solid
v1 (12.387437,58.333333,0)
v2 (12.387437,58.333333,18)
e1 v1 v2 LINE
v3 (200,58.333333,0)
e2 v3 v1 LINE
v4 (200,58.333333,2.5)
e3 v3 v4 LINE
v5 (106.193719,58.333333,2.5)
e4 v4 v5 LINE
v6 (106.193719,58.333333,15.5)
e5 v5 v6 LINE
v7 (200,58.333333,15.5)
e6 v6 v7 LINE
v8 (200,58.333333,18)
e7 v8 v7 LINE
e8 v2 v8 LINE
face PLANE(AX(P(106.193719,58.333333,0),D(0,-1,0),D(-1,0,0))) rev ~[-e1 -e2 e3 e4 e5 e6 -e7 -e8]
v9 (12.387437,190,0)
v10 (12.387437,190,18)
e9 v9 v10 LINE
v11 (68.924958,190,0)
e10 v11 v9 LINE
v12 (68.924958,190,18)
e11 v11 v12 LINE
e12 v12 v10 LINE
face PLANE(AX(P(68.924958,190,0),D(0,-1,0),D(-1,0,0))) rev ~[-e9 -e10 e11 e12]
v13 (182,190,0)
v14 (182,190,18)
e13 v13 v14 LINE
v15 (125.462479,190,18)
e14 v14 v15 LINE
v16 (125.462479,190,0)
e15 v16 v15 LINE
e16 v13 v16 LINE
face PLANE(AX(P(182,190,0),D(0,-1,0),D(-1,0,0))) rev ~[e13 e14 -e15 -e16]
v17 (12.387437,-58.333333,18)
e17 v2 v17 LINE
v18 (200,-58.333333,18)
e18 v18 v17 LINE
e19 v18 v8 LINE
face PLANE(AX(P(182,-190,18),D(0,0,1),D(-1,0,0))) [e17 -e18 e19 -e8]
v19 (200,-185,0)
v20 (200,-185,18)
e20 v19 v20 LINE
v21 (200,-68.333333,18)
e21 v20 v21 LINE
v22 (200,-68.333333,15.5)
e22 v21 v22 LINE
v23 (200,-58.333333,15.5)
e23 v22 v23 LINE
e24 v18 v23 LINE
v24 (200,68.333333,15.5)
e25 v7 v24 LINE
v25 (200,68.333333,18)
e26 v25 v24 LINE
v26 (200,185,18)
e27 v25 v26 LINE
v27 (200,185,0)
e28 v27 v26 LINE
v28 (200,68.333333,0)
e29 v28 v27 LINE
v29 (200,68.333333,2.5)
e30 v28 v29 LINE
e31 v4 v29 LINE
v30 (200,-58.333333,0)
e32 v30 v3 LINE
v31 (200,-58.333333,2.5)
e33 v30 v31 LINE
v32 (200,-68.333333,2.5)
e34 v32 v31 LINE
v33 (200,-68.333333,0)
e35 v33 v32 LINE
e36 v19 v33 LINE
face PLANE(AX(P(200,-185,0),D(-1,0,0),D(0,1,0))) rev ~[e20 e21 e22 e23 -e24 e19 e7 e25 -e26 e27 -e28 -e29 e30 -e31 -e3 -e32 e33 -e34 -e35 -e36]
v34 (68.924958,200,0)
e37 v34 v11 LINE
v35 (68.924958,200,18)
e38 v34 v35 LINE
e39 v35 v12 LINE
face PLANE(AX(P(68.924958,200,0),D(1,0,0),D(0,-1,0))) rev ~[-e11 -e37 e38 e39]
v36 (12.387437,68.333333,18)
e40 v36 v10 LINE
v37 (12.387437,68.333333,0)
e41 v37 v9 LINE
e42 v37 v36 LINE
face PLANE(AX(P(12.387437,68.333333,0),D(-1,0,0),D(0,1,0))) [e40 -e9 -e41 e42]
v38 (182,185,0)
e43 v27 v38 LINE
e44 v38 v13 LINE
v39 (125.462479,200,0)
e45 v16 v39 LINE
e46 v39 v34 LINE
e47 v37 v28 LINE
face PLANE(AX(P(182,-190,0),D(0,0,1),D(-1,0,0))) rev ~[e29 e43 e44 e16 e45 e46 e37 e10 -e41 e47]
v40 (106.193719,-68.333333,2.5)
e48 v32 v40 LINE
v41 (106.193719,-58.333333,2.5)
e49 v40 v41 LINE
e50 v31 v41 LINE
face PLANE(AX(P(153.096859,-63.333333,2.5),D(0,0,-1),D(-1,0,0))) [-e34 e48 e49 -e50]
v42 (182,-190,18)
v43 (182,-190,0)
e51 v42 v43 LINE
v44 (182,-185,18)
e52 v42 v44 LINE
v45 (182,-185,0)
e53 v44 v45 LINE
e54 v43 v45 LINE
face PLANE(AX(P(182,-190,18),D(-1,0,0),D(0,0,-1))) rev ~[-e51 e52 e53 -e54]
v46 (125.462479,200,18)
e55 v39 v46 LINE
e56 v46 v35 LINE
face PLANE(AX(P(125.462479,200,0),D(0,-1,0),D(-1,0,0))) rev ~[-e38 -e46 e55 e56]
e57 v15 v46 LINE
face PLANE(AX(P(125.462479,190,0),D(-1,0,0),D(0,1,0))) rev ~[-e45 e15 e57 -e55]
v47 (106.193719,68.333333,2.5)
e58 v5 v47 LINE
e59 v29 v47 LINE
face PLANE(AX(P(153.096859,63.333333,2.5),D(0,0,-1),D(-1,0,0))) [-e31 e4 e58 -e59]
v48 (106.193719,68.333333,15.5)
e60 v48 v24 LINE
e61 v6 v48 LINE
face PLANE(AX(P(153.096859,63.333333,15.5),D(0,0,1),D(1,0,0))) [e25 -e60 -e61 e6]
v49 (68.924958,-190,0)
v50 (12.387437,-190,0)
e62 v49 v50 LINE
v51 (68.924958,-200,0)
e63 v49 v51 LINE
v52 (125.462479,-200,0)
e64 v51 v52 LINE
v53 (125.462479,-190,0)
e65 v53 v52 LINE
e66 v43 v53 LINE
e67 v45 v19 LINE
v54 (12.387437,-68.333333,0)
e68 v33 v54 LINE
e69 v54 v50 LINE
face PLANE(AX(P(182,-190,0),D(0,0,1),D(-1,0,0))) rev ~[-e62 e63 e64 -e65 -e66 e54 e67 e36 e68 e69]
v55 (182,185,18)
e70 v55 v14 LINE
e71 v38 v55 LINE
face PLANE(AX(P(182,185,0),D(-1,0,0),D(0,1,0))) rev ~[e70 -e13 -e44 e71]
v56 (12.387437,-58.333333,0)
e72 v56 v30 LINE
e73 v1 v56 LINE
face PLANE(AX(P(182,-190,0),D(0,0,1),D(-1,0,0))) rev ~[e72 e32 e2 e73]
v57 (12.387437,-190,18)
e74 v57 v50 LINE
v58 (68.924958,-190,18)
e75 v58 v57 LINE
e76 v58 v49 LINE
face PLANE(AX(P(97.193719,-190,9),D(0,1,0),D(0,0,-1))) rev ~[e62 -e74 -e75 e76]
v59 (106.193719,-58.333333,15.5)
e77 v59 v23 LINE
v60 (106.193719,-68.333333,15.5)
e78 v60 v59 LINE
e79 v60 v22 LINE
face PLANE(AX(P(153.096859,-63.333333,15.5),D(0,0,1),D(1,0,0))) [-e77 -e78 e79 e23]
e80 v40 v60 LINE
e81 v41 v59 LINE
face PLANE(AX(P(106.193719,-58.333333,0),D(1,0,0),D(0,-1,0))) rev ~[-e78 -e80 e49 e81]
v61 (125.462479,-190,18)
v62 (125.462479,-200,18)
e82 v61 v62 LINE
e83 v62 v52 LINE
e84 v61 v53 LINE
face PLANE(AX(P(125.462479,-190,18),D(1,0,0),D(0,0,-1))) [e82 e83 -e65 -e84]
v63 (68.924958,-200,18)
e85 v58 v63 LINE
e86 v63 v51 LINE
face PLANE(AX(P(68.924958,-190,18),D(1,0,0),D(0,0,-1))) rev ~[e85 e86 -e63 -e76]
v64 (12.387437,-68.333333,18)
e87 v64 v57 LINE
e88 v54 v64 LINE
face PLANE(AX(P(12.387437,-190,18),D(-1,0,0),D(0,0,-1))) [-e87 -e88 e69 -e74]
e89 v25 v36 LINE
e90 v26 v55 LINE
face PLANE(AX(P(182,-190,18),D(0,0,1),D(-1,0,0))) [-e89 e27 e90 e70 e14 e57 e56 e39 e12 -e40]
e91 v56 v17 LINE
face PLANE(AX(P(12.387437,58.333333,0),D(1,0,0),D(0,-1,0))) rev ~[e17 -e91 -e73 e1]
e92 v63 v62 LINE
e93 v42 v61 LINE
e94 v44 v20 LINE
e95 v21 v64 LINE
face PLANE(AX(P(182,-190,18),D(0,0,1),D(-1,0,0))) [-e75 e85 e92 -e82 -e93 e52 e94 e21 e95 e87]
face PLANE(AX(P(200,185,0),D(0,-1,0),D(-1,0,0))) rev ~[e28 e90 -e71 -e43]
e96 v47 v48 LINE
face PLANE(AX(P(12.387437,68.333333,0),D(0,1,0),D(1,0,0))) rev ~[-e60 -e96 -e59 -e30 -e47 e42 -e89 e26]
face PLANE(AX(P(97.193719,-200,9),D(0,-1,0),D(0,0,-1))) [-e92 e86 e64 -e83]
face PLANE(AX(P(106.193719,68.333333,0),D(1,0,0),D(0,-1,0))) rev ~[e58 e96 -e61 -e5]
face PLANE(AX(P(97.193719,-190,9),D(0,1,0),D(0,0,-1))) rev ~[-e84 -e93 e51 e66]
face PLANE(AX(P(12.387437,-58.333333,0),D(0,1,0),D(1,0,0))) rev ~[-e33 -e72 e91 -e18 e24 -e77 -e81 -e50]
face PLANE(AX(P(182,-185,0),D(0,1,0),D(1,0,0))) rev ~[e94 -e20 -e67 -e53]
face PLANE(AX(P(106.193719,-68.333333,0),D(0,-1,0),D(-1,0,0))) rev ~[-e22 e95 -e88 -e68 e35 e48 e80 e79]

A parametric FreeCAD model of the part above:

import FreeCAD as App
import Part
import Sketcher
from FreeCAD import Vector
Q = App.Units.Quantity


def add_polygon(sketch, points):
    """Adds a closed chain of lines whose ends are joined by coincident constraints."""
    first, n = sketch.GeometryCount, len(points)
    for a, b in zip(points, points[1:] + points[:1]):
        sketch.addGeometry(Part.LineSegment(App.Vector(*a, 0), App.Vector(*b, 0)), False)
    for i in range(n):
        sketch.addConstraint(Sketcher.Constraint("Coincident", first + i, 2, first + (i + 1) % n, 1))

doc = App.newDocument("Part")
body = doc.addObject("PartDesign::Body", "Body")

sketch1 = doc.addObject("Sketcher::SketchObject", "Sketch")
body.addObject(sketch1)
sketch1.AttachmentSupport = (doc.XY_Plane, [""])
sketch1.MapMode = "FlatFace"
add_polygon(sketch1, [(-9, -12), (-9, -182), (9, -182), (9, -12)])
sketch1.addConstraint([
    Sketcher.Constraint("Vertical", 0),
    Sketcher.Constraint("Horizontal", 1),
    Sketcher.Constraint("Vertical", 2),
    Sketcher.Constraint("Horizontal", 3),
    Sketcher.Constraint("DistanceX", 1, 1, 1, 2, Q("18 mm")),
    Sketcher.Constraint("DistanceX", 0, 2, -1, 1, Q("9 mm")),
    Sketcher.Constraint("DistanceY", 0, 2, -1, 1, Q("182 mm")),
    Sketcher.Constraint("DistanceY", 0, 2, 0, 1, Q("169.612563 mm")),
])
pad1 = doc.addObject("PartDesign::Pad", "Pad")
body.addObject(pad1)
pad1.Profile = sketch1
pad1.Length = 5

sketch2 = doc.addObject("Sketcher::SketchObject", "Sketch001")
body.addObject(sketch2)
sketch2.AttachmentSupport = (doc.XY_Plane, [""])
sketch2.MapMode = "FlatFace"
add_polygon(sketch2, [(-9, -125), (-9, -69), (9, -69), (9, -125)])
sketch2.addConstraint([
    Sketcher.Constraint("Vertical", 0),
    Sketcher.Constraint("Horizontal", 1),
    Sketcher.Constraint("Vertical", 2),
    Sketcher.Constraint("Horizontal", 3),
    Sketcher.Constraint("DistanceX", 1, 1, 1, 2, Q("18 mm")),
    Sketcher.Constraint("DistanceX", 0, 2, -1, 1, Q("9 mm")),
    Sketcher.Constraint("DistanceY", 0, 1, 0, 2, Q("56.537521 mm")),
    Sketcher.Constraint("DistanceY", 0, 2, -1, 1, Q("68.924958 mm")),
])
pad2 = doc.addObject("PartDesign::Pad", "Pad001")
body.addObject(pad2)
pad2.Profile = sketch2
pad2.Length = 10
pad2.Reversed = True

sketch3 = doc.addObject("Sketcher::SketchObject", "Sketch002")
body.addObject(sketch3)
sketch3.AttachmentSupport = (doc.YZ_Plane, [""])
sketch3.MapMode = "FlatFace"
sketch3.AttachmentOffset = App.Placement(Vector(0, 0, 9), App.Rotation())
add_polygon(sketch3, [(-69, 0), (-12, 0), (-12, 122), (-106, 122), (-106, 132), (-12, 132), (-12, 248), (-106, 248), (-106, 258), (-12, 258), (-12, 380), (-69, 380), (-69, 390), (-125, 390), (-125, 380), (-182, 380), (-182, 375), (-200, 375), (-200, 5), (-182, 5), (-182, 0), (-125, 0), (-125, -10), (-69, -10)])
sketch3.addConstraint([
    Sketcher.Constraint("Horizontal", 0),
    Sketcher.Constraint("Vertical", 1),
    Sketcher.Constraint("Horizontal", 2),
    Sketcher.Constraint("Vertical", 3),
    Sketcher.Constraint("Horizontal", 4),
    Sketcher.Constraint("Vertical", 5),
    Sketcher.Constraint("Horizontal", 6),
    Sketcher.Constraint("Vertical", 7),
    Sketcher.Constraint("Horizontal", 8),
    Sketcher.Constraint("Vertical", 9),
    Sketcher.Constraint("Horizontal", 10),
    Sketcher.Constraint("Vertical", 11),
    Sketcher.Constraint("Horizontal", 12),
    Sketcher.Constraint("Vertical", 13),
    Sketcher.Constraint("Horizontal", 14),
    Sketcher.Constraint("Vertical", 15),
    Sketcher.Constraint("Horizontal", 16),
    Sketcher.Constraint("Vertical", 17),
    Sketcher.Constraint("Horizontal", 18),
    Sketcher.Constraint("Vertical", 19),
    Sketcher.Constraint("Horizontal", 20),
    Sketcher.Constraint("Vertical", 21),
    Sketcher.Constraint("Horizontal", 22),
    Sketcher.Constraint("Vertical", 23),
    Sketcher.Constraint("PointOnObject", 0, 2, -1),
    Sketcher.Constraint("PointOnObject", 19, 2, -1),
    Sketcher.Constraint("Horizontal", 10, 2, 13, 2),
    Sketcher.Constraint("Vertical", 1, 2, 4, 2),
    Sketcher.Constraint("Vertical", 3, 2, 6, 2),
    Sketcher.Constraint("Vertical", 5, 2, 8, 2),
    Sketcher.Constraint("Vertical", 15, 2, 18, 2),
    Sketcher.Constraint("Vertical", 13, 2, 20, 2),
    Sketcher.Constraint("Vertical", 11, 2, 22, 2),
    Sketcher.Constraint("Equal", 10, 12),
    Sketcher.Constraint("Equal", 12, 14),
    Sketcher.Constraint("Equal", 3, 7),
    Sketcher.Constraint("Equal", 1, 9),
    Sketcher.Constraint("Equal", 7, 11),
    Sketcher.Constraint("Equal", 15, 19),
    Sketcher.Constraint("Equal", 13, 21),
    Sketcher.Constraint("DistanceX", 16, 2, 16, 1, Q("18 mm")),
    Sketcher.Constraint("DistanceY", 3, 1, 3, 2, Q("10 mm")),
    Sketcher.Constraint("DistanceY", 15, 2, 15, 1, Q("5 mm")),
    Sketcher.Constraint("DistanceY", 17, 2, 17, 1, Q("370 mm")),
    Sketcher.Constraint("DistanceX", 14, 2, -1, 1, Q("182 mm")),
    Sketcher.Constraint("DistanceX", 0, 1, 0, 2, Q("56.537521 mm")),
    Sketcher.Constraint("DistanceX", 2, 2, 2, 1, Q("93.806281 mm")),
    Sketcher.Constraint("DistanceY", 1, 1, 1, 2, Q("121.666667 mm")),
])
pad3 = doc.addObject("PartDesign::Pad", "Pad002")
body.addObject(pad3)
pad3.Profile = sketch3
pad3.Length = 18
pad3.Reversed = True

sketch4 = doc.addObject("Sketcher::SketchObject", "Sketch003")
body.addObject(sketch4)
sketch4.AttachmentSupport = (doc.YZ_Plane, [""])
sketch4.MapMode = "FlatFace"
sketch4.AttachmentOffset = App.Placement(Vector(0, 0, 9), App.Rotation())
add_polygon(sketch4, [(-200, 258), (-200, 248), (-106, 248), (-106, 258)])
add_polygon(sketch4, [(-200, 132), (-200, 122), (-106, 122), (-106, 132)])
sketch4.addConstraint([
    Sketcher.Constraint("Vertical", 0),
    Sketcher.Constraint("Horizontal", 1),
    Sketcher.Constraint("Vertical", 2),
    Sketcher.Constraint("Horizontal", 3),
    Sketcher.Constraint("Vertical", 4),
    Sketcher.Constraint("Horizontal", 5),
    Sketcher.Constraint("Vertical", 6),
    Sketcher.Constraint("Horizontal", 7),
    Sketcher.Constraint("Vertical", 3, 2, 4, 2),
    Sketcher.Constraint("Vertical", 2, 2, 5, 2),
    Sketcher.Constraint("Equal", 2, 4),
    Sketcher.Constraint("DistanceY", 0, 2, 0, 1, Q("10 mm")),
    Sketcher.Constraint("DistanceX", 0, 2, -1, 1, Q("200 mm")),
    Sketcher.Constraint("DistanceX", 1, 1, 1, 2, Q("93.806281 mm")),
    Sketcher.Constraint("DistanceY", -1, 1, 0, 2, Q("248.333333 mm")),
    Sketcher.Constraint("DistanceY", -1, 1, 4, 2, Q("121.666667 mm")),
])
pocket1 = doc.addObject("PartDesign::Pocket", "Pocket")
body.addObject(pocket1)
pocket1.Profile = sketch4
pocket1.Length = 2.5

sketch5 = doc.addObject("Sketcher::SketchObject", "Sketch004")
body.addObject(sketch5)
sketch5.AttachmentSupport = (doc.YZ_Plane, [""])
sketch5.MapMode = "FlatFace"
sketch5.AttachmentOffset = App.Placement(Vector(0, 0, -9), App.Rotation())
add_polygon(sketch5, [(-106, 132), (-106, 122), (-200, 122), (-200, 132)])
add_polygon(sketch5, [(-106, 258), (-106, 248), (-200, 248), (-200, 258)])
sketch5.addConstraint([
    Sketcher.Constraint("Vertical", 0),
    Sketcher.Constraint("Horizontal", 1),
    Sketcher.Constraint("Vertical", 2),
    Sketcher.Constraint("Horizontal", 3),
    Sketcher.Constraint("Vertical", 4),
    Sketcher.Constraint("Horizontal", 5),
    Sketcher.Constraint("Vertical", 6),
    Sketcher.Constraint("Horizontal", 7),
    Sketcher.Constraint("Vertical", 3, 2, 4, 2),
    Sketcher.Constraint("Vertical", 2, 2, 5, 2),
    Sketcher.Constraint("Equal", 2, 4),
    Sketcher.Constraint("DistanceY", 0, 2, 0, 1, Q("10 mm")),
    Sketcher.Constraint("DistanceX", 1, 2, -1, 1, Q("200 mm")),
    Sketcher.Constraint("DistanceX", 1, 2, 1, 1, Q("93.806281 mm")),
    Sketcher.Constraint("DistanceY", -1, 1, 0, 2, Q("121.666667 mm")),
    Sketcher.Constraint("DistanceY", -1, 1, 4, 2, Q("248.333333 mm")),
])
pocket2 = doc.addObject("PartDesign::Pocket", "Pocket001")
body.addObject(pocket2)
pocket2.Profile = sketch5
pocket2.Length = 2.5
pocket2.Reversed = True
body2 = doc.addObject("PartDesign::Body", "Body001")
doc.recompute()

body.Placement = App.Placement(Vector(0, 0, 13), App.Rotation(Vector(0, 0, 1), 0))
boolean = doc.addObject("PartDesign::Boolean", "Boolean")
body2.addObject(boolean)
boolean.Type = "Fuse"
boolean.addObjects([body])
body3 = doc.addObject("PartDesign::Body", "Body002")
doc.recompute()

body2.Placement = App.Placement(Vector(0, 0, 0), App.Rotation(Vector(0, 1, 0), 90))
boolean2 = doc.addObject("PartDesign::Boolean", "Boolean001")
body3.addObject(boolean2)
boolean2.Type = "Fuse"
boolean2.addObjects([body2])
body4 = doc.addObject("PartDesign::Body", "Body003")
doc.recompute()

body3.Placement = App.Placement(Vector(0, -203, 9), App.Rotation(Vector(0, 0, 1), 90))
boolean3 = doc.addObject("PartDesign::Boolean", "Boolean002")
body4.addObject(boolean3)
boolean3.Type = "Fuse"
boolean3.addObjects([body3])

doc.recompute()
